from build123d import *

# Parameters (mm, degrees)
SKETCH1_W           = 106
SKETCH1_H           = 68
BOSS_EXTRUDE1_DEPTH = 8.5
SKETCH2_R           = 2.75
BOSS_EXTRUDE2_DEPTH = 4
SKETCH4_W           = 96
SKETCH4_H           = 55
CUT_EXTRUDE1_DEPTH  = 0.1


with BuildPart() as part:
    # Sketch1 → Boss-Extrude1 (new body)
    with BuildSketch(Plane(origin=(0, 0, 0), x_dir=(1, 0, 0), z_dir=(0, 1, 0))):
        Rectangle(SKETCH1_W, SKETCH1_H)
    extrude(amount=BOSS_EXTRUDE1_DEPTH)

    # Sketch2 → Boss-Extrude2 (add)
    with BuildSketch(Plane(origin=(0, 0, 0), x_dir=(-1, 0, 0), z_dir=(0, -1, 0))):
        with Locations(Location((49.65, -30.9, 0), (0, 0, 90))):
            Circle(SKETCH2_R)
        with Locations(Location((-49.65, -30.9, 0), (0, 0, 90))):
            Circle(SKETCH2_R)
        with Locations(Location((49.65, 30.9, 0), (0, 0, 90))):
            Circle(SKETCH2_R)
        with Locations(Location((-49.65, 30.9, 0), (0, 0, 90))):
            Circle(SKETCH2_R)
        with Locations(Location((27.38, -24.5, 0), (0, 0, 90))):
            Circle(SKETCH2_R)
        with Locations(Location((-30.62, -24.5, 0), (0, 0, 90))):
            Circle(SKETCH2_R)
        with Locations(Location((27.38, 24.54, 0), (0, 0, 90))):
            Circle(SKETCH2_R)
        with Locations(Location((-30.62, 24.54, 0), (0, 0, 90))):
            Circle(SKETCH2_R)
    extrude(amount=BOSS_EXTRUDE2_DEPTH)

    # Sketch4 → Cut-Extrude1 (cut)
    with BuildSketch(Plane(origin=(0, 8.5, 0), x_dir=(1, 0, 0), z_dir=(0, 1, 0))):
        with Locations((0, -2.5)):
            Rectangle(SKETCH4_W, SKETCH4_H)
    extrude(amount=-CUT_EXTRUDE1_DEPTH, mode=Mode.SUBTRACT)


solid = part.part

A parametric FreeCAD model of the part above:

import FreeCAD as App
import Part
import Sketcher
Q = App.Units.Quantity

doc = App.newDocument("Part")
params = doc.addObject("Spreadsheet::Sheet", "Params")
for row, (alias, value) in enumerate([
    ("sketch1_width", "106 mm"),
    ("sketch1_height", "68 mm"),
    ("pad1_length", "8.5 mm"),
    ("sketch2_diameter", "5.5 mm"),
    ("pad2_length", "4 mm"),
    ("sketch3_width", "96 mm"),
    ("sketch3_height", "55 mm"),
    ("pocket1_length", "0.1 mm"),
], start=1):
    params.set(f"A{row}", alias)
    params.set(f"B{row}", "=" + value)
    params.setAlias(f"B{row}", alias)

body = doc.addObject("PartDesign::Body", "Body")

# Sketch on XZ plane
sketch1 = body.newObject("Sketcher::SketchObject", "Sketch")
sketch1.AttachmentSupport = (doc.getObject("XZ_Plane"), [""])
sketch1.MapMode = "FlatFace"
sketch1.addGeometry([
    Part.LineSegment(App.Vector(-53, -34, 0), App.Vector(-53, 34, 0)),
    Part.LineSegment(App.Vector(-53, 34, 0), App.Vector(53, 34, 0)),
    Part.LineSegment(App.Vector(53, 34, 0), App.Vector(53, -34, 0)),
    Part.LineSegment(App.Vector(53, -34, 0), App.Vector(-53, -34, 0)),
], False)
sketch1.addConstraint([
    Sketcher.Constraint("Coincident", 0, 2, 1, 1),
    Sketcher.Constraint("Coincident", 1, 2, 2, 1),
    Sketcher.Constraint("Coincident", 2, 2, 3, 1),
    Sketcher.Constraint("Coincident", 3, 2, 0, 1),
    Sketcher.Constraint("Vertical", 0),
    Sketcher.Constraint("Horizontal", 1),
    Sketcher.Constraint("Vertical", 2),
    Sketcher.Constraint("Horizontal", 3),
    Sketcher.Constraint("Symmetric", 0, 2, 2, 2, -1, 1),
    Sketcher.Constraint("DistanceX", 1, 1, 1, 2, Q("106 mm")),
    Sketcher.Constraint("DistanceY", 0, 1, 0, 2, Q("68 mm")),
])
sketch1.setExpression("Constraints[9]", "Params.sketch1_width")
sketch1.setExpression("Constraints[10]", "Params.sketch1_height")
pad1 = body.newObject("PartDesign::Pad", "Pad")
pad1.Profile = sketch1
pad1.setExpression("Length", "Params.pad1_length")
pad1.Reversed = True

# Sketch on XZ plane
sketch2 = body.newObject("Sketcher::SketchObject", "Sketch001")
sketch2.AttachmentSupport = (doc.getObject("XZ_Plane"), [""])
sketch2.MapMode = "FlatFace"
sketch2.addGeometry([
    Part.Circle(App.Vector(-49.6, 30.9, 0), App.Vector(0, 0, 1), 2.8),  # 0
    Part.Circle(App.Vector(49.6, 30.9, 0), App.Vector(0, 0, 1), 2.8),  # 1
    Part.Circle(App.Vector(-49.6, -30.9, 0), App.Vector(0, 0, 1), 2.8),  # 2
    Part.Circle(App.Vector(49.6, -30.9, 0), App.Vector(0, 0, 1), 2.8),  # 3
    Part.Circle(App.Vector(-27.4, 24.5, 0), App.Vector(0, 0, 1), 2.8),  # 4
    Part.Circle(App.Vector(30.6, 24.5, 0), App.Vector(0, 0, 1), 2.8),  # 5
    Part.Circle(App.Vector(-27.4, -24.5, 0), App.Vector(0, 0, 1), 2.8),  # 6
    Part.Circle(App.Vector(30.6, -24.5, 0), App.Vector(0, 0, 1), 2.8),  # 7
], False)
sketch2.addConstraint([
    Sketcher.Constraint("Equal", 0, 1),
    Sketcher.Constraint("Equal", 1, 2),
    Sketcher.Constraint("Equal", 2, 3),
    Sketcher.Constraint("Equal", 3, 4),
    Sketcher.Constraint("Equal", 4, 5),
    Sketcher.Constraint("Equal", 5, 6),
    Sketcher.Constraint("Equal", 6, 7),
    Sketcher.Constraint("Symmetric", 1, 3, 2, 3, -1, 1),
    Sketcher.Constraint("Symmetric", 0, 3, 3, 3, -1, 1),
    Sketcher.Constraint("Symmetric", 0, 3, 1, 3, -2),
    Sketcher.Constraint("Horizontal", 4, 3, 5, 3),
    Sketcher.Constraint("Horizontal", 6, 3, 7, 3),
    Sketcher.Constraint("Vertical", 4, 3, 6, 3),
    Sketcher.Constraint("Vertical", 5, 3, 7, 3),
    Sketcher.Constraint("Diameter", 0, Q("5.5 mm")),
    Sketcher.Constraint("DistanceX", 4, 3, 5, 3, Q("58 mm")),
    Sketcher.Constraint("DistanceY", -1, 1, 0, 3, Q("30.9 mm")),
    Sketcher.Constraint("DistanceY", -1, 1, 4, 3, Q("24.5 mm")),
    Sketcher.Constraint("DistanceX", 0, 3, 1, 3, Q("99.3 mm")),
    Sketcher.Constraint("DistanceX", 4, 3, -1, 1, Q("27.38 mm")),
    Sketcher.Constraint("DistanceY", 6, 3, -1, 1, Q("24.54 mm")),
])
sketch2.setExpression("Constraints[14]", "Params.sketch2_diameter")
pad2 = body.newObject("PartDesign::Pad", "Pad001")
pad2.Profile = sketch2
pad2.setExpression("Length", "Params.pad2_length")

# Sketch on XZ plane
sketch3 = body.newObject("Sketcher::SketchObject", "Sketch002")
sketch3.AttachmentSupport = (doc.getObject("XZ_Plane"), [""])
sketch3.MapMode = "FlatFace"
sketch3.AttachmentOffset = App.Placement(App.Vector(0, 0, -8.5), App.Rotation())
sketch3.addGeometry([
    Part.LineSegment(App.Vector(-48, -25, 0), App.Vector(-48, 30, 0)),
    Part.LineSegment(App.Vector(-48, 30, 0), App.Vector(48, 30, 0)),
    Part.LineSegment(App.Vector(48, 30, 0), App.Vector(48, -25, 0)),
    Part.LineSegment(App.Vector(48, -25, 0), App.Vector(-48, -25, 0)),
], False)
sketch3.addConstraint([
    Sketcher.Constraint("Coincident", 0, 2, 1, 1),
    Sketcher.Constraint("Coincident", 1, 2, 2, 1),
    Sketcher.Constraint("Coincident", 2, 2, 3, 1),
    Sketcher.Constraint("Coincident", 3, 2, 0, 1),
    Sketcher.Constraint("Vertical", 0),
    Sketcher.Constraint("Horizontal", 1),
    Sketcher.Constraint("Vertical", 2),
    Sketcher.Constraint("Horizontal", 3),
    Sketcher.Constraint("DistanceX", 1, 1, 1, 2, Q("96 mm")),
    Sketcher.Constraint("DistanceY", 0, 1, 0, 2, Q("55 mm")),
    Sketcher.Constraint("DistanceX", 0, 2, -1, 1, Q("48 mm")),
    Sketcher.Constraint("DistanceY", -1, 1, 0, 2, Q("30 mm")),
])
sketch3.setExpression("Constraints[8]", "Params.sketch3_width")
sketch3.setExpression("Constraints[9]", "Params.sketch3_height")
pocket1 = body.newObject("PartDesign::Pocket", "Pocket")
pocket1.Profile = sketch3
pocket1.setExpression("Length", "Params.pocket1_length")
pocket1.Reversed = True

doc.recompute()
